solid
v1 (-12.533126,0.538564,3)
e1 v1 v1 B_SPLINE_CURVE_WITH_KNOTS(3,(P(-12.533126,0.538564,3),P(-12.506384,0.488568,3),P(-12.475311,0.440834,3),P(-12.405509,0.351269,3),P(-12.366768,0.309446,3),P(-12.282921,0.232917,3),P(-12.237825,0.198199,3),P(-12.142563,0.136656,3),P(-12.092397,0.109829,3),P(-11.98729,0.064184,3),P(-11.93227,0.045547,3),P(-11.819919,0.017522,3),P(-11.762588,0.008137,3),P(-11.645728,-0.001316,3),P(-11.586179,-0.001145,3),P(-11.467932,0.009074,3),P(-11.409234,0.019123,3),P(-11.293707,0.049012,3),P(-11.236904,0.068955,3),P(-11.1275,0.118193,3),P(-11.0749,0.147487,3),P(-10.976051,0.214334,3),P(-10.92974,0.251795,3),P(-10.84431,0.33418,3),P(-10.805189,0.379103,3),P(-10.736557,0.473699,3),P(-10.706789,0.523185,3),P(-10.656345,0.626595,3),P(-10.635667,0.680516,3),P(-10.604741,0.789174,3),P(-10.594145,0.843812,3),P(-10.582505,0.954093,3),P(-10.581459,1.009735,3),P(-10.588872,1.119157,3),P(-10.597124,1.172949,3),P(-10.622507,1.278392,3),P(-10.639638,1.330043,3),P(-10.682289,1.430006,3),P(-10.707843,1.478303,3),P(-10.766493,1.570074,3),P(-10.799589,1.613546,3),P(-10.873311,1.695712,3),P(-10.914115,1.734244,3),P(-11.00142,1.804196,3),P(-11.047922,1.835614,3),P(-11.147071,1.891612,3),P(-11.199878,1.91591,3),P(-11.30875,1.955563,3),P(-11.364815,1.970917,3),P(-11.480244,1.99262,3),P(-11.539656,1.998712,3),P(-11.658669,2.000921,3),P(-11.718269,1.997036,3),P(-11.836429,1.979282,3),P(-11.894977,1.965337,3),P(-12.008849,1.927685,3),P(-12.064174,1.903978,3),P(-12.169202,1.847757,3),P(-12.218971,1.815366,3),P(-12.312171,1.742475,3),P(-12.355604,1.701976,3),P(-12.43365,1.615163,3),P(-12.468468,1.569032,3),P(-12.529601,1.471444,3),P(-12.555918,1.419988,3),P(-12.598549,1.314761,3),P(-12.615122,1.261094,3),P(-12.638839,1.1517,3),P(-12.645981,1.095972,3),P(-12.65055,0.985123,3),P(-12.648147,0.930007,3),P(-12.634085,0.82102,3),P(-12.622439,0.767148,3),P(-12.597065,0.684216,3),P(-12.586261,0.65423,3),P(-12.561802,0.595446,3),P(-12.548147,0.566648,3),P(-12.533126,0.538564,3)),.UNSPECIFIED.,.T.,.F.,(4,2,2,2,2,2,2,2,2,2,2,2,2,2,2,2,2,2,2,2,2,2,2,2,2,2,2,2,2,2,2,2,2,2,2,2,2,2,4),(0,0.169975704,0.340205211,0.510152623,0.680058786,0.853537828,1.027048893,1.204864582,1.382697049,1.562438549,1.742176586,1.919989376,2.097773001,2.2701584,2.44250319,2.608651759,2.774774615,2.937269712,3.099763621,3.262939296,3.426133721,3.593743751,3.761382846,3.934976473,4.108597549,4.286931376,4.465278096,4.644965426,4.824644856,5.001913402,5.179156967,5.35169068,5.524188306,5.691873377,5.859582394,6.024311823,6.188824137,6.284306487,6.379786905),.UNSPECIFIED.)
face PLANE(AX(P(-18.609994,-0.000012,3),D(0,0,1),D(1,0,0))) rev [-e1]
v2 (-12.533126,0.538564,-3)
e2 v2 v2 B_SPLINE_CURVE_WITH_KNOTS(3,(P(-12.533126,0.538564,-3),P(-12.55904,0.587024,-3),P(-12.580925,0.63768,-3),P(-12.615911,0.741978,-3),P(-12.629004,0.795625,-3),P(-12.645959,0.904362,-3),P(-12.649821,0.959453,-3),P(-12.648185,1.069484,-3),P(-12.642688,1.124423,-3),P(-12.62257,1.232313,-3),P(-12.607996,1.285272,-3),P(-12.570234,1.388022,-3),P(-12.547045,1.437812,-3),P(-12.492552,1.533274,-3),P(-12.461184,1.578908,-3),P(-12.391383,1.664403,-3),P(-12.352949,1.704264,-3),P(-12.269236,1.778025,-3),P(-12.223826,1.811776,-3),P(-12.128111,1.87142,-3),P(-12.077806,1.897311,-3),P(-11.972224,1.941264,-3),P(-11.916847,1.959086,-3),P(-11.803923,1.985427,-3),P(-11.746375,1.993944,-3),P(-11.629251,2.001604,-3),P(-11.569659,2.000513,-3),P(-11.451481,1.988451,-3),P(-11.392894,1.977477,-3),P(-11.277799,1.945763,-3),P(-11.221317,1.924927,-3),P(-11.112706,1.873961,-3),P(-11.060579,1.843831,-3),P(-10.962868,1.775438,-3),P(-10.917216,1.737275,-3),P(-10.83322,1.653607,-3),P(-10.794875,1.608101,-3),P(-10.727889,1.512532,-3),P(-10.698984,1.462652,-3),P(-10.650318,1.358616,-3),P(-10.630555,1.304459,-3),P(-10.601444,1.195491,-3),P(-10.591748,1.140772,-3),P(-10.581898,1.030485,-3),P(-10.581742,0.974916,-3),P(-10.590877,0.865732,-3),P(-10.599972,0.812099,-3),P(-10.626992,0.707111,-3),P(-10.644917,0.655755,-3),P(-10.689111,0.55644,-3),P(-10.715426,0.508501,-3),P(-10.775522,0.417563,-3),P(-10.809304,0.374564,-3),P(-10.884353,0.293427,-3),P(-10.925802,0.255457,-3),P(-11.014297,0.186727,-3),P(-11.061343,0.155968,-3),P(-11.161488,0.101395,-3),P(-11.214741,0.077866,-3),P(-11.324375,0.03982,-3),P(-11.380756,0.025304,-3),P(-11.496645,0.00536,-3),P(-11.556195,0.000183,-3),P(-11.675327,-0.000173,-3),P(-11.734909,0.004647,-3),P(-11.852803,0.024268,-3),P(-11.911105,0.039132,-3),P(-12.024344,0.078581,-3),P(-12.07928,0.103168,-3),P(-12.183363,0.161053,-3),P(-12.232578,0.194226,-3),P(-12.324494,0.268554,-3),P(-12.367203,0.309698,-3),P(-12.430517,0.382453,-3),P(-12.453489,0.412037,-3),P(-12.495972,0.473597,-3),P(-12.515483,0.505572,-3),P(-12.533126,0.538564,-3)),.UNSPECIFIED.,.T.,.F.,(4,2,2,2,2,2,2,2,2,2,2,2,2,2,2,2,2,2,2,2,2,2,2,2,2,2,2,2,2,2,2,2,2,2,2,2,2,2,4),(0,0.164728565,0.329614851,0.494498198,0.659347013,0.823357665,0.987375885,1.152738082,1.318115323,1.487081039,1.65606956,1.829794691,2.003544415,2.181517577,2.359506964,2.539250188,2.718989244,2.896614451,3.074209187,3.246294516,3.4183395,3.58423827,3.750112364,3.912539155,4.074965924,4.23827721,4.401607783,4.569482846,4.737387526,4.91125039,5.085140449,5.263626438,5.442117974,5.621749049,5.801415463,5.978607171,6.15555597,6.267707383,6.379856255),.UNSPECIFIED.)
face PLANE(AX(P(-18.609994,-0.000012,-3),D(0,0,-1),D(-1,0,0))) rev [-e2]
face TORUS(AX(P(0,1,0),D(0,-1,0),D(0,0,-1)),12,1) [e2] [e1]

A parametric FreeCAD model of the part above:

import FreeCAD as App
import Part
import Sketcher
from FreeCAD import Vector
Q = App.Units.Quantity


def add_polygon(sketch, points):
    """Adds a closed chain of lines whose ends are joined by coincident constraints."""
    first, n = sketch.GeometryCount, len(points)
    for a, b in zip(points, points[1:] + points[:1]):
        sketch.addGeometry(Part.LineSegment(App.Vector(*a, 0), App.Vector(*b, 0)), False)
    for i in range(n):
        sketch.addConstraint(Sketcher.Constraint("Coincident", first + i, 2, first + (i + 1) % n, 1))

doc = App.newDocument("Part")
params = doc.addObject("Spreadsheet::Sheet", "Params")
for row, (alias, value) in enumerate([
    ("sketch1_diameter", "2 mm"),
    ("revolution_angle", "360 deg"),
    ("sketch2_height", "6 mm"),
], start=1):
    params.set(f"A{row}", alias)
    params.set(f"B{row}", "=" + value)
    params.setAlias(f"B{row}", alias)

body = doc.addObject("PartDesign::Body", "Body")

sketch1 = body.newObject("Sketcher::SketchObject", "Sketch")
sketch1.AttachmentSupport = (doc.getObject("XY_Plane"), [""])
sketch1.MapMode = "FlatFace"
sketch1.addGeometry(Part.Circle(Vector(-12, 1, 0), Vector(0, 0, 1), 1), False)
sketch1.addConstraint(Sketcher.Constraint("Diameter", 0, Q("2 mm")))
sketch1.addConstraint(Sketcher.Constraint("DistanceX", 0, 3, -1, 1, Q("12 mm")))
sketch1.addConstraint(Sketcher.Constraint("DistanceY", -1, 1, 0, 3, Q("1 mm")))
sketch1.setExpression("Constraints[0]", "Params.sketch1_diameter")
revolution = body.newObject("PartDesign::Revolution", "Revolution")
revolution.Profile = sketch1
revolution.ReferenceAxis = (sketch1, ["V_Axis"])
revolution.setExpression("Angle", "Params.revolution_angle")

sketch2 = body.newObject("Sketcher::SketchObject", "Sketch001")
sketch2.AttachmentSupport = (doc.getObject("XZ_Plane"), [""])
sketch2.MapMode = "FlatFace"
add_polygon(sketch2, [(-19, -3), (-19, 3), (0, 3), (0, -3)])
sketch2.addConstraint(Sketcher.Constraint("Vertical", 0))
sketch2.addConstraint(Sketcher.Constraint("Horizontal", 1))
sketch2.addConstraint(Sketcher.Constraint("Vertical", 2))
sketch2.addConstraint(Sketcher.Constraint("Horizontal", 3))
sketch2.addConstraint(Sketcher.Constraint("DistanceY", 0, 1, 0, 2, Q("6 mm")))
sketch2.addConstraint(Sketcher.Constraint("DistanceY", -1, 1, 0, 2, Q("3 mm")))
sketch2.addConstraint(Sketcher.Constraint("DistanceX", 1, 1, 1, 2, Q("18.251865 mm")))
sketch2.addConstraint(Sketcher.Constraint("DistanceX", 1, 2, -1, 1, Q("0.358129 mm")))
sketch2.setExpression("Constraints[8]", "Params.sketch2_height")
pocket1 = body.newObject("PartDesign::Pocket", "Pocket")
pocket1.Profile = sketch2
pocket1.Type = "ThroughAll"
pocket1.Midplane = True

doc.recompute()
